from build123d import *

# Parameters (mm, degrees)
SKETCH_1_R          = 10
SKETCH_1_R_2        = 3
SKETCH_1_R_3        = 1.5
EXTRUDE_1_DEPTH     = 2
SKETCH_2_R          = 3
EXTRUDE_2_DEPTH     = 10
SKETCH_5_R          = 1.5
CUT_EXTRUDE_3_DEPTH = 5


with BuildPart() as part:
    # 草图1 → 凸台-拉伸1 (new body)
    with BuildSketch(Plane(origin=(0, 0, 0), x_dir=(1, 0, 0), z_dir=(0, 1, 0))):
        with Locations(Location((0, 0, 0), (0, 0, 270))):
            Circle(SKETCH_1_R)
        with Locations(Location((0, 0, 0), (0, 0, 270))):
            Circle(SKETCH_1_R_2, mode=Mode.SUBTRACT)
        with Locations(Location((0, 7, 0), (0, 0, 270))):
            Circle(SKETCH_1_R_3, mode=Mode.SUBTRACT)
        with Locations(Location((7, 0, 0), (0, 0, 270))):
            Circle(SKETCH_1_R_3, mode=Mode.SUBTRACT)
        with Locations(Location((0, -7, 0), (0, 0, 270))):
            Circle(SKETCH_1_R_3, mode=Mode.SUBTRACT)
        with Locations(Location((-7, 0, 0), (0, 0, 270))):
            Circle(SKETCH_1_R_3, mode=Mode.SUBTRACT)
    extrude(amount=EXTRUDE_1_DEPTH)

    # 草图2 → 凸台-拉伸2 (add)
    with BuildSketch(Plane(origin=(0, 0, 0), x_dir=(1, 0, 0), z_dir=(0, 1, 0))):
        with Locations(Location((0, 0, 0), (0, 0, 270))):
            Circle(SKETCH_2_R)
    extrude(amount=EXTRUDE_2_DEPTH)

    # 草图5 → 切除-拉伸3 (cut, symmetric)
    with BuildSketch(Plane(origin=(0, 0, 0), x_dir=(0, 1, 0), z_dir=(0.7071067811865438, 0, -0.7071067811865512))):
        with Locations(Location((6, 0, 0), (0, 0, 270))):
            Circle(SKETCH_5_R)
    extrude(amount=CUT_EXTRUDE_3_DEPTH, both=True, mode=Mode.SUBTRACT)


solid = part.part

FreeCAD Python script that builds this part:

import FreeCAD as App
import Part
import Sketcher
from FreeCAD import Vector
Q = App.Units.Quantity

doc = App.newDocument("Part")
body = doc.addObject("PartDesign::Body", "Body")

sketch1 = body.newObject("Sketcher::SketchObject", "Sketch")
sketch1.AttachmentSupport = (doc.getObject("XZ_Plane"), [""])
sketch1.MapMode = "FlatFace"
sketch1.addGeometry(Part.Circle(Vector(0, 0, 0), Vector(0, 0, 1), 10), False)
sketch1.addGeometry(Part.Circle(Vector(0, -7, 0), Vector(0, 0, 1), 1.5), False)
sketch1.addGeometry(Part.Circle(Vector(-7, 0, 0), Vector(0, 0, 1), 1.5), False)
sketch1.addGeometry(Part.Circle(Vector(7, 0, 0), Vector(0, 0, 1), 1.5), False)
sketch1.addGeometry(Part.Circle(Vector(0, 0, 0), Vector(0, 0, 1), 3), False)
sketch1.addGeometry(Part.Circle(Vector(0, 7, 0), Vector(0, 0, 1), 1.5), False)
sketch1.addConstraint(Sketcher.Constraint("Coincident", 0, 3, -1, 1))
sketch1.addConstraint(Sketcher.Constraint("Coincident", 4, 3, -1, 1))
sketch1.addConstraint(Sketcher.Constraint("Equal", 1, 2))
sketch1.addConstraint(Sketcher.Constraint("Equal", 2, 3))
sketch1.addConstraint(Sketcher.Constraint("Equal", 3, 5))
sketch1.addConstraint(Sketcher.Constraint("Symmetric", 2, 3, 3, 3, -1, 1))
sketch1.addConstraint(Sketcher.Constraint("Symmetric", 1, 3, 5, 3, -1, 1))
sketch1.addConstraint(Sketcher.Constraint("PointOnObject", 1, 3, -2))
sketch1.addConstraint(Sketcher.Constraint("PointOnObject", 2, 3, -1))
sketch1.addConstraint(Sketcher.Constraint("Diameter", 0, Q("20 mm")))
sketch1.addConstraint(Sketcher.Constraint("Diameter", 1, Q("3 mm")))
sketch1.addConstraint(Sketcher.Constraint("Diameter", 4, Q("6 mm")))
sketch1.addConstraint(Sketcher.Constraint("DistanceY", 1, 3, -1, 1, Q("7 mm")))
sketch1.addConstraint(Sketcher.Constraint("DistanceX", 2, 3, -1, 1, Q("7 mm")))
pad1 = body.newObject("PartDesign::Pad", "Pad")
pad1.Profile = sketch1
pad1.Length = 2
pad1.Reversed = True

sketch2 = body.newObject("Sketcher::SketchObject", "Sketch001")
sketch2.AttachmentSupport = (doc.getObject("XZ_Plane"), [""])
sketch2.MapMode = "FlatFace"
sketch2.addGeometry(Part.Circle(Vector(0, 0, 0), Vector(0, 0, 1), 3), False)
sketch2.addConstraint(Sketcher.Constraint("Coincident", 0, 3, -1, 1))
sketch2.addConstraint(Sketcher.Constraint("Diameter", 0, Q("6 mm")))
pad2 = body.newObject("PartDesign::Pad", "Pad001")
pad2.Profile = sketch2
pad2.Length = 10
pad2.Reversed = True

sketch3 = body.newObject("Sketcher::SketchObject", "Sketch002")
sketch3.Placement = App.Placement(Vector(0, 0, 0), App.Rotation(Vector(0, 1, 0), Vector(0.707106781, 0, 0.707106781), Vector(0.707106781, 0, -0.707106781), "ZXY"))
sketch3.addGeometry(Part.Circle(Vector(6, 0, 0), Vector(0, 0, 1), 1.5), False)
sketch3.addConstraint(Sketcher.Constraint("PointOnObject", 0, 3, -1))
sketch3.addConstraint(Sketcher.Constraint("Diameter", 0, Q("3 mm")))
sketch3.addConstraint(Sketcher.Constraint("DistanceX", -1, 1, 0, 3, Q("6 mm")))
pocket1 = body.newObject("PartDesign::Pocket", "Pocket")
pocket1.Profile = sketch3
pocket1.Length = 10
pocket1.Midplane = True

doc.recompute()
